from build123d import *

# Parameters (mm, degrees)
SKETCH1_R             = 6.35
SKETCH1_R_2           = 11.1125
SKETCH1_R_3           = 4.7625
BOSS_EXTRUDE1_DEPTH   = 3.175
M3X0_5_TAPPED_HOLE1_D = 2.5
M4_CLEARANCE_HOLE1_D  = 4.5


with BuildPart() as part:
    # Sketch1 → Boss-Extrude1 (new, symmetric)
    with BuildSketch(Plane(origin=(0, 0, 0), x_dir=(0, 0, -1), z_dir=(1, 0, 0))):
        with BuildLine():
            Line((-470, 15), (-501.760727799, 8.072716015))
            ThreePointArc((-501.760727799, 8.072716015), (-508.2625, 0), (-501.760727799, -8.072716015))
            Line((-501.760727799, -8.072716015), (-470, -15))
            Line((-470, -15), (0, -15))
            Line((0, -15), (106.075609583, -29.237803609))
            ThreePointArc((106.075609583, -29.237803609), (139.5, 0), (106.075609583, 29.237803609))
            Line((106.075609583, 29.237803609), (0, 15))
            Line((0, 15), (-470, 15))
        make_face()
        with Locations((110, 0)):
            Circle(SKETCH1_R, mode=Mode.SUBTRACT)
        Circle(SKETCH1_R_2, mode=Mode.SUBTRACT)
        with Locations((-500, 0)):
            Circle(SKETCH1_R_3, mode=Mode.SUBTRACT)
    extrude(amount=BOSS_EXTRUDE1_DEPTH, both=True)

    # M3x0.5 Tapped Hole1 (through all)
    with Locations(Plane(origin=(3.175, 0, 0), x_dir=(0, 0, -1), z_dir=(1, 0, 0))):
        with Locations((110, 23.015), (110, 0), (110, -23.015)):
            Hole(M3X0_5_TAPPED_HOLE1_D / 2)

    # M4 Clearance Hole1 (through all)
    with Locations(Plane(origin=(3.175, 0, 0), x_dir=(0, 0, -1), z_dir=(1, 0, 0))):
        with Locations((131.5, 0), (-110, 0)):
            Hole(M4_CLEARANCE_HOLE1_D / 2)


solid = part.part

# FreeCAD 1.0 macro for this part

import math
import FreeCAD as App
import Part
import Sketcher
Q = App.Units.Quantity

doc = App.newDocument("Part")
body = doc.addObject("PartDesign::Body", "Body")

# Sketch on YZ plane
sketch1 = body.newObject("Sketcher::SketchObject", "Sketch")
sketch1.AttachmentSupport = (doc.getObject("YZ_Plane"), [""])
sketch1.MapMode = "FlatFace"
sketch1.addGeometry(Part.LineSegment(App.Vector(15, 470, 0), App.Vector(8.1, 501.8, 0)), False)
sketch1.addGeometry(Part.ArcOfCircle(Part.Circle(App.Vector(0, 500, 0), App.Vector(0, 0, 1), 8.3), math.radians(12), math.radians(168)), False)
sketch1.addGeometry(Part.LineSegment(App.Vector(-8.1, 501.8, 0), App.Vector(-15, 470, 0)), False)
sketch1.addGeometry(Part.LineSegment(App.Vector(-15, 470, 0), App.Vector(-15, 0, 0)), False)
sketch1.addGeometry(Part.LineSegment(App.Vector(-15, 0, 0), App.Vector(-29.2, -106.1, 0)), False)
sketch1.addGeometry(Part.ArcOfCircle(Part.Circle(App.Vector(0, -110, 0), App.Vector(0, 0, 1), 29.5), math.radians(172), math.radians(368)), False)
sketch1.addGeometry(Part.LineSegment(App.Vector(29.2, -106.1, 0), App.Vector(15, 0, 0)), False)
sketch1.addGeometry(Part.LineSegment(App.Vector(15, 0, 0), App.Vector(15, 470, 0)), False)
sketch1.addGeometry(Part.Circle(App.Vector(0, 500, 0), App.Vector(0, 0, 1), 4.8), False)
sketch1.addGeometry(Part.Circle(App.Vector(0, 0, 0), App.Vector(0, 0, 1), 11.1), False)
sketch1.addGeometry(Part.Circle(App.Vector(0, -110, 0), App.Vector(0, 0, 1), 6.3), False)
sketch1.addConstraint(Sketcher.Constraint("Tangent", 0, 2, 1, 1))
sketch1.addConstraint(Sketcher.Constraint("Tangent", 1, 2, 2, 1))
sketch1.addConstraint(Sketcher.Constraint("Coincident", 2, 2, 3, 1))
sketch1.addConstraint(Sketcher.Constraint("Coincident", 3, 2, 4, 1))
sketch1.addConstraint(Sketcher.Constraint("Tangent", 4, 2, 5, 1))
sketch1.addConstraint(Sketcher.Constraint("Tangent", 5, 2, 6, 1))
sketch1.addConstraint(Sketcher.Constraint("Coincident", 6, 2, 7, 1))
sketch1.addConstraint(Sketcher.Constraint("Coincident", 7, 2, 0, 1))
sketch1.addConstraint(Sketcher.Constraint("Vertical", 3))
sketch1.addConstraint(Sketcher.Constraint("Vertical", 7))
sketch1.addConstraint(Sketcher.Constraint("Coincident", 9, 3, -1, 1))
sketch1.addConstraint(Sketcher.Constraint("Coincident", 8, 3, 1, 3))
sketch1.addConstraint(Sketcher.Constraint("Coincident", 10, 3, 5, 3))
sketch1.addConstraint(Sketcher.Constraint("Symmetric", 3, 2, 6, 2, -1, 1))
sketch1.addConstraint(Sketcher.Constraint("Symmetric", 0, 2, 1, 2, -2))
sketch1.addConstraint(Sketcher.Constraint("PointOnObject", 5, 3, -2))
sketch1.addConstraint(Sketcher.Constraint("PointOnObject", 3, 2, -1))
sketch1.addConstraint(Sketcher.Constraint("Diameter", 10, Q("12.7 mm")))
sketch1.addConstraint(Sketcher.Constraint("Radius", 5, Q("29.5 mm")))
sketch1.addConstraint(Sketcher.Constraint("DistanceY", 3, 2, 3, 1, Q("470 mm")))
sketch1.addConstraint(Sketcher.Constraint("Diameter", 8, Q("9.525 mm")))
sketch1.addConstraint(Sketcher.Constraint("Diameter", 9, Q("22.225 mm")))
sketch1.addConstraint(Sketcher.Constraint("DistanceY", -1, 1, 1, 3, Q("500 mm")))
sketch1.addConstraint(Sketcher.Constraint("DistanceY", 5, 3, -1, 1, Q("110 mm")))
sketch1.addConstraint(Sketcher.Constraint("DistanceX", 2, 2, -1, 1, Q("15 mm")))
sketch1.addConstraint(Sketcher.Constraint("Radius", 1, Q("8.2625 mm")))
pad1 = body.newObject("PartDesign::Pad", "Pad")
pad1.Profile = sketch1
pad1.Length = 6.35
pad1.Midplane = True

# Sketch on YZ plane
sketch2 = body.newObject("Sketcher::SketchObject", "Sketch001")
sketch2.AttachmentSupport = (doc.getObject("YZ_Plane"), [""])
sketch2.MapMode = "FlatFace"
sketch2.AttachmentOffset = App.Placement(App.Vector(0, 0, 3.175), App.Rotation())
sketch2.addGeometry(Part.Circle(App.Vector(23, -110, 0), App.Vector(0, 0, 1), 1.2), False)
sketch2.addGeometry(Part.Circle(App.Vector(0, -110, 0), App.Vector(0, 0, 1), 1.2), False)
sketch2.addGeometry(Part.Circle(App.Vector(-23, -110, 0), App.Vector(0, 0, 1), 1.2), False)
sketch2.addConstraint(Sketcher.Constraint("Equal", 0, 1))
sketch2.addConstraint(Sketcher.Constraint("Equal", 1, 2))
sketch2.addConstraint(Sketcher.Constraint("Symmetric", 0, 3, 2, 3, -2))
sketch2.addConstraint(Sketcher.Constraint("PointOnObject", 1, 3, -2))
sketch2.addConstraint(Sketcher.Constraint("Horizontal", 0, 3, 1, 3))
sketch2.addConstraint(Sketcher.Constraint("Diameter", 0, Q("2.5 mm")))
sketch2.addConstraint(Sketcher.Constraint("DistanceY", 0, 3, -1, 1, Q("110 mm")))
sketch2.addConstraint(Sketcher.Constraint("DistanceX", 2, 3, 0, 3, Q("46.03 mm")))
doc.recompute()
hole = body.newObject("PartDesign::Hole", "Hole")
hole.Profile = sketch2
hole.ThreadType = "None"
hole.Diameter = 2.5
hole.DepthType = "ThroughAll"

# Sketch on YZ plane
sketch3 = body.newObject("Sketcher::SketchObject", "Sketch002")
sketch3.AttachmentSupport = (doc.getObject("YZ_Plane"), [""])
sketch3.MapMode = "FlatFace"
sketch3.AttachmentOffset = App.Placement(App.Vector(0, 0, 3.175), App.Rotation())
sketch3.addGeometry(Part.Circle(App.Vector(0, -131.5, 0), App.Vector(0, 0, 1), 2.2), False)
sketch3.addGeometry(Part.Circle(App.Vector(0, 110, 0), App.Vector(0, 0, 1), 2.2), False)
sketch3.addConstraint(Sketcher.Constraint("Equal", 0, 1))
sketch3.addConstraint(Sketcher.Constraint("PointOnObject", 0, 3, -2))
sketch3.addConstraint(Sketcher.Constraint("PointOnObject", 1, 3, -2))
sketch3.addConstraint(Sketcher.Constraint("Diameter", 0, Q("4.5 mm")))
sketch3.addConstraint(Sketcher.Constraint("DistanceY", -1, 1, 1, 3, Q("110 mm")))
sketch3.addConstraint(Sketcher.Constraint("DistanceY", 0, 3, -1, 1, Q("131.5 mm")))
doc.recompute()
hole2 = body.newObject("PartDesign::Hole", "Hole001")
hole2.Profile = sketch3
hole2.ThreadType = "None"
hole2.Diameter = 4.5
hole2.DepthType = "ThroughAll"

doc.recompute()
